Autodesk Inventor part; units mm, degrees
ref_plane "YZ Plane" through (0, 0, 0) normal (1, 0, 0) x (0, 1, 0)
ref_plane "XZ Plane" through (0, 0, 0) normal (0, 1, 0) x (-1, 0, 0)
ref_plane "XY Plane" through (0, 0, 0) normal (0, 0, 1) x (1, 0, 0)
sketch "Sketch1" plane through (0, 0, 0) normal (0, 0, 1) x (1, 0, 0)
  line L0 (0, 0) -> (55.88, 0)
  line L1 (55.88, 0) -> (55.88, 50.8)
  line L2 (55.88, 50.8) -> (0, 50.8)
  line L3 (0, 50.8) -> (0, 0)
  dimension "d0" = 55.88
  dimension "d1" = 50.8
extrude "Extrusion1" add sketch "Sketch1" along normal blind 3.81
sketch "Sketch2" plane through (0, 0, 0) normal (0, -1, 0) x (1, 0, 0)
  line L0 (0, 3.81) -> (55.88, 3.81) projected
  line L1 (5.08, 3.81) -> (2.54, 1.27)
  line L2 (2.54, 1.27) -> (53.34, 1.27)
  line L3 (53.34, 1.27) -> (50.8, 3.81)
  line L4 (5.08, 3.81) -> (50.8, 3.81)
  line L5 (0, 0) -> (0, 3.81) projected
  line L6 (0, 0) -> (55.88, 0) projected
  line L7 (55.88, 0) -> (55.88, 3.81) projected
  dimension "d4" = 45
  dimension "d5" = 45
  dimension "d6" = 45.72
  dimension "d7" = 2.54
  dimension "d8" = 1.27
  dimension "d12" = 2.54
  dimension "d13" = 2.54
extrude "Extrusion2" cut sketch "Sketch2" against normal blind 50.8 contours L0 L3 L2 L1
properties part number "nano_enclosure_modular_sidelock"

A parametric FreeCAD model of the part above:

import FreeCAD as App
import Part
import Sketcher
Q = App.Units.Quantity

doc = App.newDocument("Part")
body = doc.addObject("PartDesign::Body", "Body")

sketch1 = body.newObject("Sketcher::SketchObject", "Sketch")
sketch1.AttachmentSupport = (doc.getObject("XY_Plane"), [""])
sketch1.MapMode = "FlatFace"
sketch1.addGeometry([
    Part.LineSegment(App.Vector(0, 51, 0), App.Vector(0, 0, 0)),
    Part.LineSegment(App.Vector(0, 0, 0), App.Vector(56, 0, 0)),
    Part.LineSegment(App.Vector(56, 0, 0), App.Vector(56, 51, 0)),
    Part.LineSegment(App.Vector(56, 51, 0), App.Vector(0, 51, 0)),
], False)
sketch1.addConstraint([
    Sketcher.Constraint("Coincident", 0, 2, 1, 1),
    Sketcher.Constraint("Coincident", 1, 2, 2, 1),
    Sketcher.Constraint("Coincident", 2, 2, 3, 1),
    Sketcher.Constraint("Coincident", 3, 2, 0, 1),
    Sketcher.Constraint("Vertical", 0),
    Sketcher.Constraint("Horizontal", 1),
    Sketcher.Constraint("Vertical", 2),
    Sketcher.Constraint("Horizontal", 3),
    Sketcher.Constraint("Coincident", 0, 2, -1, 1),
    Sketcher.Constraint("DistanceY", 0, 2, 0, 1, Q("2 in")),
    Sketcher.Constraint("DistanceX", 1, 1, 1, 2, Q("2.2 in")),
])
pad1 = body.newObject("PartDesign::Pad", "Pad")
pad1.Profile = sketch1
pad1.Length = Q("0.15 in")

sketch2 = body.newObject("Sketcher::SketchObject", "Sketch001")
sketch2.AttachmentSupport = (doc.getObject("XZ_Plane"), [""])
sketch2.MapMode = "FlatFace"
sketch2.addGeometry([
    Part.LineSegment(App.Vector(50.8, 3.8, 0), App.Vector(5.1, 3.8, 0)),
    Part.LineSegment(App.Vector(5.1, 3.8, 0), App.Vector(2.5, 1.3, 0)),
    Part.LineSegment(App.Vector(2.5, 1.3, 0), App.Vector(53.3, 1.3, 0)),
    Part.LineSegment(App.Vector(53.3, 1.3, 0), App.Vector(50.8, 3.8, 0)),
], False)
sketch2.addConstraint([
    Sketcher.Constraint("Coincident", 0, 2, 1, 1),
    Sketcher.Constraint("Coincident", 1, 2, 2, 1),
    Sketcher.Constraint("Coincident", 2, 2, 3, 1),
    Sketcher.Constraint("Coincident", 3, 2, 0, 1),
    Sketcher.Constraint("Horizontal", 0),
    Sketcher.Constraint("Horizontal", 2),
    Sketcher.Constraint("Perpendicular", 1, 3),
    Sketcher.Constraint("Equal", 1, 3),
    Sketcher.Constraint("DistanceX", 0, 2, 0, 1, Q("1.8 in")),
    Sketcher.Constraint("DistanceX", -1, 1, 1, 2, Q("0.1 in")),
    Sketcher.Constraint("DistanceX", 1, 2, 0, 2, Q("0.1 in")),
    Sketcher.Constraint("DistanceY", -1, 1, 1, 2, Q("0.05 in")),
])
pocket1 = body.newObject("PartDesign::Pocket", "Pocket")
pocket1.Profile = sketch2
pocket1.Length = Q("2 in")

doc.recompute()
